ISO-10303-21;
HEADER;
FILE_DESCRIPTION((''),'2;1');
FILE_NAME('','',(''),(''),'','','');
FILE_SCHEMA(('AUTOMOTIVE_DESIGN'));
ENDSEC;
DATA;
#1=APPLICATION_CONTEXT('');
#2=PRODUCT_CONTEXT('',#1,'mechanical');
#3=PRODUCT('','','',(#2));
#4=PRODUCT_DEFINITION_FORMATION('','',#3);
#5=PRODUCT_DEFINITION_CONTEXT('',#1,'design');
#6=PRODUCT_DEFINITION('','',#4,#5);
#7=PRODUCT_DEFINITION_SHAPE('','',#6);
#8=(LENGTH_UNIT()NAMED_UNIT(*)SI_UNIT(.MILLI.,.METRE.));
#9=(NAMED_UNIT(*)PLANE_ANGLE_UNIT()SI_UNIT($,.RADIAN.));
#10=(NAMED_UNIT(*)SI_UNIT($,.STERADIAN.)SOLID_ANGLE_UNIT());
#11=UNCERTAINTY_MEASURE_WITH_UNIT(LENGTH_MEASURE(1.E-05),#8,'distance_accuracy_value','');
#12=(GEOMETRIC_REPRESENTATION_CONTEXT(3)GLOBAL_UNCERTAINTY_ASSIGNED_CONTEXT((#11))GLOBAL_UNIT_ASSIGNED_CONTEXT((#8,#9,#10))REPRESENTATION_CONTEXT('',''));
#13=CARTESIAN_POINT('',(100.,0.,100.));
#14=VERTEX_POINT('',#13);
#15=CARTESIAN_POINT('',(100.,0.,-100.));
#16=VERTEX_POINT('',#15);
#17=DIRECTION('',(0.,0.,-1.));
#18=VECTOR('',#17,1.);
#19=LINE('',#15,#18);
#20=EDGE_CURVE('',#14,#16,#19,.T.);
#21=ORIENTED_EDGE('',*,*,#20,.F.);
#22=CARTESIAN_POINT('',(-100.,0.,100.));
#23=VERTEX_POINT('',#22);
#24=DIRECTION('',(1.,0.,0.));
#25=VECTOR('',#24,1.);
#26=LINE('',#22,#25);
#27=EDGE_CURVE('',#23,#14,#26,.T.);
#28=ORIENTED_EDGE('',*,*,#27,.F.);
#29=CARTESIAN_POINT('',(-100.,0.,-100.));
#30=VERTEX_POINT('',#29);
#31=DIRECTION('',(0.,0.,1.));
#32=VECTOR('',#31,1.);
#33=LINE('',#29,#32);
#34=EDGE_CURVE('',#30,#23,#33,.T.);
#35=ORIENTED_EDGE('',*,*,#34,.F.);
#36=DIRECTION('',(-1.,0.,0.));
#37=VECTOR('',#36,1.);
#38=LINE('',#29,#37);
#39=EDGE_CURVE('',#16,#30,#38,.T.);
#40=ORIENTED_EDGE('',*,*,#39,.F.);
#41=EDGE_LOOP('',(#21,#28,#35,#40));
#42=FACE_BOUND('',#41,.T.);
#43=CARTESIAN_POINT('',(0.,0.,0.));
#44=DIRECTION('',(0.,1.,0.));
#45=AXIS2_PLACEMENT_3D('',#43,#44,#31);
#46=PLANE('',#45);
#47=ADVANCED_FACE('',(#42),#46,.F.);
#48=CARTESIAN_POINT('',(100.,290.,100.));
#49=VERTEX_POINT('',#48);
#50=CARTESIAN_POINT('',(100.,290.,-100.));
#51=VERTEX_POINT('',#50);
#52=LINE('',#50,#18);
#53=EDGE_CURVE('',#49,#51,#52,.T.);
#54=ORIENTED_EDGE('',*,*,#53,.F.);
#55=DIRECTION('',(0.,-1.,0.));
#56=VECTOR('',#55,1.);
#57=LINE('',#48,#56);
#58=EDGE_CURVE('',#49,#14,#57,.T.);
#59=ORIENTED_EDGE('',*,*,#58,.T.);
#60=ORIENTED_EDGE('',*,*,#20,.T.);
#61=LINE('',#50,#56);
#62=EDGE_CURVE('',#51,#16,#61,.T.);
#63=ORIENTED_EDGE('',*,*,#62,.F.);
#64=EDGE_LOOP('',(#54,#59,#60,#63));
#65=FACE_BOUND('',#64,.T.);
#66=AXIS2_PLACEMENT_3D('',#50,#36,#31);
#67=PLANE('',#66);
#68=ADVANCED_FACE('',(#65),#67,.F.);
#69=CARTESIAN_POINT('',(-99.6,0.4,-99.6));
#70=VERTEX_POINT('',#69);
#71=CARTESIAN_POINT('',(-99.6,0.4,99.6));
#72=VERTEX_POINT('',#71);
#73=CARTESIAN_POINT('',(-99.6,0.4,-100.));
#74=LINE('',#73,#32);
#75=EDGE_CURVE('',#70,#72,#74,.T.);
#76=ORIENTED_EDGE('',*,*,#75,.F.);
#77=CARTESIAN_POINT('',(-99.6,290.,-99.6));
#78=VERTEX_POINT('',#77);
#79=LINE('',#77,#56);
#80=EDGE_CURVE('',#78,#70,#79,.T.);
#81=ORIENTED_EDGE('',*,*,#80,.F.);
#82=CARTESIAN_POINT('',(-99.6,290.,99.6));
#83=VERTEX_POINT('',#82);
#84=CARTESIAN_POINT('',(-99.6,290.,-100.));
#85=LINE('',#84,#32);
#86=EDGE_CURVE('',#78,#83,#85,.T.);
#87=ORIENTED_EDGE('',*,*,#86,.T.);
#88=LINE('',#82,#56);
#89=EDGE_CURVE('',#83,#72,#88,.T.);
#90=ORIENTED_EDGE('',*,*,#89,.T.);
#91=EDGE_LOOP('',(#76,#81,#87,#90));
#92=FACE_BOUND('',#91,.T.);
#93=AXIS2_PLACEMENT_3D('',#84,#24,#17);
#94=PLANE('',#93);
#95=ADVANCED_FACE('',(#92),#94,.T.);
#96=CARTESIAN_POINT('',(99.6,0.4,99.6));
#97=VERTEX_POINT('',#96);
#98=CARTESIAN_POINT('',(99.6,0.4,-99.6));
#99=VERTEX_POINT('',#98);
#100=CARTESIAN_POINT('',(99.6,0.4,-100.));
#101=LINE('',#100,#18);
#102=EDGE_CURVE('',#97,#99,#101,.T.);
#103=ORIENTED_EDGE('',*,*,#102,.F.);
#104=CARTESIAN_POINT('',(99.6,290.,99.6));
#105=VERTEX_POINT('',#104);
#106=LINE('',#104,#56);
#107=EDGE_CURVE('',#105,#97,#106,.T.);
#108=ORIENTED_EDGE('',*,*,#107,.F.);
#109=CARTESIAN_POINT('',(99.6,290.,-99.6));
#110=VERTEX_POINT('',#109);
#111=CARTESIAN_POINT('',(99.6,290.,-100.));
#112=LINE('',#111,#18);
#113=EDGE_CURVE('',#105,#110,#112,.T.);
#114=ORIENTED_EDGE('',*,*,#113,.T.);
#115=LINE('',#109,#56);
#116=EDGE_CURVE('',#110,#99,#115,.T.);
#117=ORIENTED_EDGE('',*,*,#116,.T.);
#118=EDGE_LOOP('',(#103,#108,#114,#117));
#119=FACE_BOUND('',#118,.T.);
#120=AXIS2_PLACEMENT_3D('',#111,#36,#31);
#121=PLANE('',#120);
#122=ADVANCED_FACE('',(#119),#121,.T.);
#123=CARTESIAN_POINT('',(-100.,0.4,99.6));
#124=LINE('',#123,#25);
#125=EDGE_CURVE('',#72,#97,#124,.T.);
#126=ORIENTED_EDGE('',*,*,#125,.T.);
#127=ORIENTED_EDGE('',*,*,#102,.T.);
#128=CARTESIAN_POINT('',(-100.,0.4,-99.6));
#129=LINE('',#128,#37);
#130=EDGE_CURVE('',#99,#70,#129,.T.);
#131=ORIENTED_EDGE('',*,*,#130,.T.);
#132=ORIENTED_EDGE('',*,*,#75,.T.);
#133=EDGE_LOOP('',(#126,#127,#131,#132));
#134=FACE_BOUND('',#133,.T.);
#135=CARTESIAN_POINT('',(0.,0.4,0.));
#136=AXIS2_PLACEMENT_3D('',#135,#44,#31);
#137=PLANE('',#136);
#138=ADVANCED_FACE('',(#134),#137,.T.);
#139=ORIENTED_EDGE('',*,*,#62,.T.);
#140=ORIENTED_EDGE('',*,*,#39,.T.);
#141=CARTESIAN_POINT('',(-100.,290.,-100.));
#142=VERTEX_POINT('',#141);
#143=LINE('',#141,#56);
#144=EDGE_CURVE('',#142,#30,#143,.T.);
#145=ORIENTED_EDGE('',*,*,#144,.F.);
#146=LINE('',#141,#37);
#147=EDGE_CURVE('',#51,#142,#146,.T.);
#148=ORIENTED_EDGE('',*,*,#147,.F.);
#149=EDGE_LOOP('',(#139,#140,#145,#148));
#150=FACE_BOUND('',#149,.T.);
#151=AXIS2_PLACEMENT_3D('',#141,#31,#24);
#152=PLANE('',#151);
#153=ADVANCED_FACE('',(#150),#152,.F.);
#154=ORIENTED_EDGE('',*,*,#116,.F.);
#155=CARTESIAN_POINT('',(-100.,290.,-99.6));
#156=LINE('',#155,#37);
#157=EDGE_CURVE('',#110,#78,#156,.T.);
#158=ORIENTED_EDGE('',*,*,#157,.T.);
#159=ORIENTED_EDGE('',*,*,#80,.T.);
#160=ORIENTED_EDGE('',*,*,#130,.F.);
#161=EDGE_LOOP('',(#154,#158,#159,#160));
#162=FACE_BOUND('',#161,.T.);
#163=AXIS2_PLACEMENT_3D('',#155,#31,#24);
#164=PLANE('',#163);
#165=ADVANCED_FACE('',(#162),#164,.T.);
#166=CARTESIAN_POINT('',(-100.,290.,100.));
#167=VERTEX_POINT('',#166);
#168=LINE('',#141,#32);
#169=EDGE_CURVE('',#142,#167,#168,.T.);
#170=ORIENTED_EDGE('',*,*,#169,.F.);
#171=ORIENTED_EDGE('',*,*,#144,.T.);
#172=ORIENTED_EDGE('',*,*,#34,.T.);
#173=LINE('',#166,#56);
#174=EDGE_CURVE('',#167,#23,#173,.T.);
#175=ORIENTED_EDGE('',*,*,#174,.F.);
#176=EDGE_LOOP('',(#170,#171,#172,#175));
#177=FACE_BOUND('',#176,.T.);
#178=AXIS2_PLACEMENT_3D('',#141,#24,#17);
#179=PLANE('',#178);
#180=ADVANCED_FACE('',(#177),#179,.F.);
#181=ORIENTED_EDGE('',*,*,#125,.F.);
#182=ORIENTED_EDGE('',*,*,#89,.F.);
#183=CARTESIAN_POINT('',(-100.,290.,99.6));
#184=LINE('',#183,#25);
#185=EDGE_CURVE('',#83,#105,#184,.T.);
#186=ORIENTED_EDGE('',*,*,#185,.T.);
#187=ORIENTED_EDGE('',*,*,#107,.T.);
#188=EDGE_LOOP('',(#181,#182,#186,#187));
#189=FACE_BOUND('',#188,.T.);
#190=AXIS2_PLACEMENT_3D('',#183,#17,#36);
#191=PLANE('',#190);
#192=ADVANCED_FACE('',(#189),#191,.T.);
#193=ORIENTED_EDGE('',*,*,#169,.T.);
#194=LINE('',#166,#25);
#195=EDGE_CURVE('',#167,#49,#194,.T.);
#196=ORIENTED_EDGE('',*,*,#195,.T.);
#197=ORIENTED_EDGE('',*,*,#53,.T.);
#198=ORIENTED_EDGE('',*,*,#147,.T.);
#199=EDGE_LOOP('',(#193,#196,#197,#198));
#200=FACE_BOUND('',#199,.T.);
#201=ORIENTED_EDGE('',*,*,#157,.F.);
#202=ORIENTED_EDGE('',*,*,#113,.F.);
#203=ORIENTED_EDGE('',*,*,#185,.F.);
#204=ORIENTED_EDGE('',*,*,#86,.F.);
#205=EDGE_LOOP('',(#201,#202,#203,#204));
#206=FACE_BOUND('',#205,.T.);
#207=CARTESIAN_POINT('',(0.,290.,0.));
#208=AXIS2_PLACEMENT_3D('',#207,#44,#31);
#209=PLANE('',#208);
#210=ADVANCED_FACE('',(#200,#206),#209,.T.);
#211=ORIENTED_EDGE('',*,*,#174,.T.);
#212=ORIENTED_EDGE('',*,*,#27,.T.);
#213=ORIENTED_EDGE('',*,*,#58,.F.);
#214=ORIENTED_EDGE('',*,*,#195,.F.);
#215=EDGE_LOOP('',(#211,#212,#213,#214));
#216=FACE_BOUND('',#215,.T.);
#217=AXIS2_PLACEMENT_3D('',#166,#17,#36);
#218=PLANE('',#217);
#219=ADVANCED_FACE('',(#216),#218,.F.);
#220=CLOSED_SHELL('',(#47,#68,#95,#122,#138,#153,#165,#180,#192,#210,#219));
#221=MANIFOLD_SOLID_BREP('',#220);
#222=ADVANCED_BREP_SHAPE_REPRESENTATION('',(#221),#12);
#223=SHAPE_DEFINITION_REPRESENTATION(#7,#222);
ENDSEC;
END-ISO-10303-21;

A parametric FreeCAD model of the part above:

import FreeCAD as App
import Part
import Sketcher

V = App.Vector


def faces_at(feature, points):
    """Names of the faces that lie closest to the given points."""
    faces = feature.Shape.Faces
    near = lambda p: min(range(len(faces)), key=lambda i: faces[i].distToShape(Part.Vertex(*p))[0])
    return sorted({f"Face{near(p) + 1}" for p in points})

doc = App.newDocument("Part")
body = doc.addObject("PartDesign::Body", "Body")

# Sketch on XZ plane
sketch1 = body.newObject("Sketcher::SketchObject", "Sketch")
sketch1.AttachmentSupport = (doc.getObject("XZ_Plane"), [""])
sketch1.MapMode = "FlatFace"
sketch1.addGeometry([
    Part.LineSegment(V(-100, -100, 0), V(-100, 100, 0)),
    Part.LineSegment(V(-100, 100, 0), V(100, 100, 0)),
    Part.LineSegment(V(100, 100, 0), V(100, -100, 0)),
    Part.LineSegment(V(100, -100, 0), V(-100, -100, 0)),
], False)
sketch1.addConstraint([
    Sketcher.Constraint("Coincident", 0, 2, 1, 1),
    Sketcher.Constraint("Coincident", 1, 2, 2, 1),
    Sketcher.Constraint("Coincident", 2, 2, 3, 1),
    Sketcher.Constraint("Coincident", 3, 2, 0, 1),
    Sketcher.Constraint("Vertical", 0),
    Sketcher.Constraint("Horizontal", 1),
    Sketcher.Constraint("Vertical", 2),
    Sketcher.Constraint("Horizontal", 3),
    Sketcher.Constraint("Symmetric", 0, 2, 2, 2, -1, 1),
    Sketcher.Constraint("Equal", 3, 0),
    Sketcher.Constraint("DistanceX", 1, 1, 1, 2, 200.0),
])
pad1 = body.newObject("PartDesign::Pad", "Pad")
pad1.Profile = sketch1
pad1.Length = 290
pad1.Reversed = True
doc.recompute()

thickness = body.newObject("PartDesign::Thickness", "Thickness")
thickness.Base = (pad1, faces_at(pad1, [(0, 290, 0)]))
thickness.Value = 0.4
thickness.Reversed = True
thickness.Join = "Intersection"

doc.recompute()
